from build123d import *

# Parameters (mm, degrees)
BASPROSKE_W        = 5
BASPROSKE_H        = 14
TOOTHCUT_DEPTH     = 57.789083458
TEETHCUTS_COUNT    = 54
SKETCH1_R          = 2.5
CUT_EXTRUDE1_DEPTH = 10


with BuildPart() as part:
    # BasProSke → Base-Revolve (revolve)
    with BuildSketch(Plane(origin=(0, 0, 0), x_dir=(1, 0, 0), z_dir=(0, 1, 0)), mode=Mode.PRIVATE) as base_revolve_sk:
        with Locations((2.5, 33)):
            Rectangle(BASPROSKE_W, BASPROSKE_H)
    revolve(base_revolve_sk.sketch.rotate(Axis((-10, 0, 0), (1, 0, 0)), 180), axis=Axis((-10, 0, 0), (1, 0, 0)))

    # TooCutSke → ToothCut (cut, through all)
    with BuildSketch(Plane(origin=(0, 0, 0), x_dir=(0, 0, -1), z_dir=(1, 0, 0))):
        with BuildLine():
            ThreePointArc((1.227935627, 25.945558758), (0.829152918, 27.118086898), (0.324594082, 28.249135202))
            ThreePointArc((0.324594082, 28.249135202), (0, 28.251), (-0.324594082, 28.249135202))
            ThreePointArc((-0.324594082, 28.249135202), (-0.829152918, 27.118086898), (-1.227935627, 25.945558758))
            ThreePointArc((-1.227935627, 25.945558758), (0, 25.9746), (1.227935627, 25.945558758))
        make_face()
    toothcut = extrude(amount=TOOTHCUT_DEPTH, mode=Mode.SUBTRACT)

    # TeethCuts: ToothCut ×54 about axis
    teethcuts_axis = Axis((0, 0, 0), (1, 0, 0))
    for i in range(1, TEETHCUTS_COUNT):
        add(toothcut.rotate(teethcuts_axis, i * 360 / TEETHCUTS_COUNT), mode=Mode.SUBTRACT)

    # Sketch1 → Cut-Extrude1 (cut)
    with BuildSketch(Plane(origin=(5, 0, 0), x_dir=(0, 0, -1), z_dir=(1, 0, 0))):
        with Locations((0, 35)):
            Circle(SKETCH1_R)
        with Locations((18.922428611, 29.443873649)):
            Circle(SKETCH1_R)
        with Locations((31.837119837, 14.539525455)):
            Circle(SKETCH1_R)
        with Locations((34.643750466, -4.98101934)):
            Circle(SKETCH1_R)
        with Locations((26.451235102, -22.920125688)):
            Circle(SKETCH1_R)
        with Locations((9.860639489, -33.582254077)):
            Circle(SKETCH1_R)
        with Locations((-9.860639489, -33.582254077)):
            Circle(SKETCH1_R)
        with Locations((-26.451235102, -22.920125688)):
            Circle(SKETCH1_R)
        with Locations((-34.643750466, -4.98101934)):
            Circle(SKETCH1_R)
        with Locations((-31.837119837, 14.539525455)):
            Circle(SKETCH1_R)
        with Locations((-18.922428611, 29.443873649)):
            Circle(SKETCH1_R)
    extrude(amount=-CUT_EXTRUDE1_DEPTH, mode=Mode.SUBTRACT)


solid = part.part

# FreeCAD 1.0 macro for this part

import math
import FreeCAD as App
import Part
import Sketcher
Q = App.Units.Quantity

doc = App.newDocument("Part")
body = doc.addObject("PartDesign::Body", "Body")

sketch1 = body.newObject("Sketcher::SketchObject", "Sketch")
sketch1.AttachmentSupport = (doc.getObject("XZ_Plane"), [""])
sketch1.MapMode = "FlatFace"
sketch1.addGeometry(Part.LineSegment(App.Vector(0, -40, 0), App.Vector(0, -26, 0)), False)
sketch1.addGeometry(Part.LineSegment(App.Vector(0, -26, 0), App.Vector(5, -26, 0)), False)
sketch1.addGeometry(Part.LineSegment(App.Vector(5, -26, 0), App.Vector(5, -40, 0)), False)
sketch1.addGeometry(Part.LineSegment(App.Vector(5, -40, 0), App.Vector(0, -40, 0)), False)
sketch1.addConstraint(Sketcher.Constraint("Coincident", 0, 2, 1, 1))
sketch1.addConstraint(Sketcher.Constraint("Coincident", 1, 2, 2, 1))
sketch1.addConstraint(Sketcher.Constraint("Coincident", 2, 2, 3, 1))
sketch1.addConstraint(Sketcher.Constraint("Coincident", 3, 2, 0, 1))
sketch1.addConstraint(Sketcher.Constraint("Vertical", 0))
sketch1.addConstraint(Sketcher.Constraint("Horizontal", 1))
sketch1.addConstraint(Sketcher.Constraint("Vertical", 2))
sketch1.addConstraint(Sketcher.Constraint("Horizontal", 3))
sketch1.addConstraint(Sketcher.Constraint("PointOnObject", 0, 2, -2))
sketch1.addConstraint(Sketcher.Constraint("DistanceX", 1, 1, 1, 2, Q("5 mm")))
sketch1.addConstraint(Sketcher.Constraint("DistanceY", 0, 1, 0, 2, Q("14 mm")))
sketch1.addConstraint(Sketcher.Constraint("DistanceY", 0, 2, -1, 1, Q("26 mm")))
revolution = body.newObject("PartDesign::Revolution", "Revolution")
revolution.Profile = sketch1
revolution.ReferenceAxis = (sketch1, ["H_Axis"])
revolution.Angle = 360

sketch2 = body.newObject("Sketcher::SketchObject", "Sketch001")
sketch2.AttachmentSupport = (doc.getObject("YZ_Plane"), [""])
sketch2.MapMode = "FlatFace"
sketch2.addGeometry(Part.ArcOfCircle(Part.Circle(App.Vector(22.2, 11.7, 0), App.Vector(0, 0, 1), 13.5), math.radians(-73.85), math.radians(-63.33)), False)
sketch2.addGeometry(Part.ArcOfCircle(Part.Circle(App.Vector(0, 0, 0), App.Vector(0, 0, 1), 28.3), math.radians(-0.66), math.radians(0.66)), False)
sketch2.addGeometry(Part.ArcOfCircle(Part.Circle(App.Vector(22.2, -11.7, 0), App.Vector(0, 0, 1), 13.5), math.radians(63.33), math.radians(73.85)), False)
sketch2.addGeometry(Part.ArcOfCircle(Part.Circle(App.Vector(0, 0, 0), App.Vector(0, 0, 1), 26), math.radians(-2.71), math.radians(2.71)), False)
sketch2.addConstraint(Sketcher.Constraint("Coincident", 0, 2, 1, 1))
sketch2.addConstraint(Sketcher.Constraint("Coincident", 1, 2, 2, 1))
sketch2.addConstraint(Sketcher.Constraint("Coincident", 2, 2, 3, 2))
sketch2.addConstraint(Sketcher.Constraint("Coincident", 3, 1, 0, 1))
sketch2.addConstraint(Sketcher.Constraint("Coincident", 1, 3, -1, 1))
sketch2.addConstraint(Sketcher.Constraint("Coincident", 3, 3, -1, 1))
sketch2.addConstraint(Sketcher.Constraint("Equal", 0, 2))
sketch2.addConstraint(Sketcher.Constraint("Symmetric", 0, 3, 2, 3, -1))
sketch2.addConstraint(Sketcher.Constraint("Radius", 0, Q("13.5 mm")))
sketch2.addConstraint(Sketcher.Constraint("Radius", 3, Q("25.9746 mm")))
sketch2.addConstraint(Sketcher.Constraint("Radius", 1, Q("28.250994 mm")))
sketch2.addConstraint(Sketcher.Constraint("DistanceX", -1, 1, 0, 3, Q("22.189508 mm")))
sketch2.addConstraint(Sketcher.Constraint("DistanceX", -1, 1, 2, 2, Q("25.945559 mm")))
pocket1 = body.newObject("PartDesign::Pocket", "Pocket")
pocket1.Profile = sketch2
pocket1.Type = "ThroughAll"
pocket1.Reversed = True
doc.recompute()

polarpattern = body.newObject("PartDesign::PolarPattern", "PolarPattern")
polarpattern.Originals = [pocket1]
polarpattern.Axis = (doc.getObject("X_Axis"), [""])
polarpattern.Angle = 360
polarpattern.Occurrences = 54
body.Tip = polarpattern

sketch3 = body.newObject("Sketcher::SketchObject", "Sketch002")
sketch3.AttachmentSupport = (doc.getObject("YZ_Plane"), [""])
sketch3.MapMode = "FlatFace"
sketch3.AttachmentOffset = App.Placement(App.Vector(0, 0, 5), App.Rotation())
sketch3.addGeometry(Part.Circle(App.Vector(35, 0, 0), App.Vector(0, 0, 1), 2.5), False)
sketch3.addGeometry(Part.Circle(App.Vector(29.4, -18.9, 0), App.Vector(0, 0, 1), 2.5), False)
sketch3.addGeometry(Part.Circle(App.Vector(14.5, -31.8, 0), App.Vector(0, 0, 1), 2.5), False)
sketch3.addGeometry(Part.Circle(App.Vector(-5, -34.6, 0), App.Vector(0, 0, 1), 2.5), False)
sketch3.addGeometry(Part.Circle(App.Vector(-22.9, -26.5, 0), App.Vector(0, 0, 1), 2.5), False)
sketch3.addGeometry(Part.Circle(App.Vector(-33.6, -9.9, 0), App.Vector(0, 0, 1), 2.5), False)
sketch3.addGeometry(Part.Circle(App.Vector(-33.6, 9.9, 0), App.Vector(0, 0, 1), 2.5), False)
sketch3.addGeometry(Part.Circle(App.Vector(-22.9, 26.5, 0), App.Vector(0, 0, 1), 2.5), False)
sketch3.addGeometry(Part.Circle(App.Vector(-5, 34.6, 0), App.Vector(0, 0, 1), 2.5), False)
sketch3.addGeometry(Part.Circle(App.Vector(14.5, 31.8, 0), App.Vector(0, 0, 1), 2.5), False)
sketch3.addGeometry(Part.Circle(App.Vector(29.4, 18.9, 0), App.Vector(0, 0, 1), 2.5), False)
sketch3.addConstraint(Sketcher.Constraint("Equal", 0, 1))
sketch3.addConstraint(Sketcher.Constraint("Equal", 1, 2))
sketch3.addConstraint(Sketcher.Constraint("Equal", 2, 3))
sketch3.addConstraint(Sketcher.Constraint("Equal", 3, 4))
sketch3.addConstraint(Sketcher.Constraint("Equal", 4, 5))
sketch3.addConstraint(Sketcher.Constraint("Equal", 5, 6))
sketch3.addConstraint(Sketcher.Constraint("Equal", 6, 7))
sketch3.addConstraint(Sketcher.Constraint("Equal", 7, 8))
sketch3.addConstraint(Sketcher.Constraint("Equal", 8, 9))
sketch3.addConstraint(Sketcher.Constraint("Equal", 9, 10))
sketch3.addConstraint(Sketcher.Constraint("Symmetric", 5, 3, 6, 3, -1))
sketch3.addConstraint(Sketcher.Constraint("Symmetric", 4, 3, 7, 3, -1))
sketch3.addConstraint(Sketcher.Constraint("Symmetric", 3, 3, 8, 3, -1))
sketch3.addConstraint(Sketcher.Constraint("Symmetric", 2, 3, 9, 3, -1))
sketch3.addConstraint(Sketcher.Constraint("Symmetric", 1, 3, 10, 3, -1))
sketch3.addConstraint(Sketcher.Constraint("PointOnObject", 0, 3, -1))
sketch3.addConstraint(Sketcher.Constraint("Diameter", 0, Q("5 mm")))
sketch3.addConstraint(Sketcher.Constraint("DistanceX", -1, 1, 0, 3, Q("35 mm")))
sketch3.addConstraint(Sketcher.Constraint("DistanceX", 4, 3, 1, 3, Q("52.363999 mm")))
sketch3.addConstraint(Sketcher.Constraint("DistanceY", 1, 3, -1, 1, Q("18.922429 mm")))
sketch3.addConstraint(Sketcher.Constraint("DistanceY", 2, 3, -1, 1, Q("31.83712 mm")))
sketch3.addConstraint(Sketcher.Constraint("DistanceX", 3, 3, -1, 1, Q("4.981019 mm")))
sketch3.addConstraint(Sketcher.Constraint("DistanceY", 3, 3, -1, 1, Q("34.64375 mm")))
sketch3.addConstraint(Sketcher.Constraint("DistanceY", 5, 3, -1, 1, Q("9.860639 mm")))
sketch3.addConstraint(Sketcher.Constraint("DistanceX", 2, 3, 1, 3, Q("14.904348 mm")))
sketch3.addConstraint(Sketcher.Constraint("DistanceX", 5, 3, 4, 3, Q("10.662128 mm")))
sketch3.addConstraint(Sketcher.Constraint("DistanceY", 4, 3, 7, 3, Q("52.90247 mm")))
sketch3.addConstraint(Sketcher.Constraint("DistanceX", -1, 1, 1, 3, Q("29.443874 mm")))
pocket2 = body.newObject("PartDesign::Pocket", "Pocket001")
pocket2.Profile = sketch3
pocket2.Length = 10

doc.recompute()
